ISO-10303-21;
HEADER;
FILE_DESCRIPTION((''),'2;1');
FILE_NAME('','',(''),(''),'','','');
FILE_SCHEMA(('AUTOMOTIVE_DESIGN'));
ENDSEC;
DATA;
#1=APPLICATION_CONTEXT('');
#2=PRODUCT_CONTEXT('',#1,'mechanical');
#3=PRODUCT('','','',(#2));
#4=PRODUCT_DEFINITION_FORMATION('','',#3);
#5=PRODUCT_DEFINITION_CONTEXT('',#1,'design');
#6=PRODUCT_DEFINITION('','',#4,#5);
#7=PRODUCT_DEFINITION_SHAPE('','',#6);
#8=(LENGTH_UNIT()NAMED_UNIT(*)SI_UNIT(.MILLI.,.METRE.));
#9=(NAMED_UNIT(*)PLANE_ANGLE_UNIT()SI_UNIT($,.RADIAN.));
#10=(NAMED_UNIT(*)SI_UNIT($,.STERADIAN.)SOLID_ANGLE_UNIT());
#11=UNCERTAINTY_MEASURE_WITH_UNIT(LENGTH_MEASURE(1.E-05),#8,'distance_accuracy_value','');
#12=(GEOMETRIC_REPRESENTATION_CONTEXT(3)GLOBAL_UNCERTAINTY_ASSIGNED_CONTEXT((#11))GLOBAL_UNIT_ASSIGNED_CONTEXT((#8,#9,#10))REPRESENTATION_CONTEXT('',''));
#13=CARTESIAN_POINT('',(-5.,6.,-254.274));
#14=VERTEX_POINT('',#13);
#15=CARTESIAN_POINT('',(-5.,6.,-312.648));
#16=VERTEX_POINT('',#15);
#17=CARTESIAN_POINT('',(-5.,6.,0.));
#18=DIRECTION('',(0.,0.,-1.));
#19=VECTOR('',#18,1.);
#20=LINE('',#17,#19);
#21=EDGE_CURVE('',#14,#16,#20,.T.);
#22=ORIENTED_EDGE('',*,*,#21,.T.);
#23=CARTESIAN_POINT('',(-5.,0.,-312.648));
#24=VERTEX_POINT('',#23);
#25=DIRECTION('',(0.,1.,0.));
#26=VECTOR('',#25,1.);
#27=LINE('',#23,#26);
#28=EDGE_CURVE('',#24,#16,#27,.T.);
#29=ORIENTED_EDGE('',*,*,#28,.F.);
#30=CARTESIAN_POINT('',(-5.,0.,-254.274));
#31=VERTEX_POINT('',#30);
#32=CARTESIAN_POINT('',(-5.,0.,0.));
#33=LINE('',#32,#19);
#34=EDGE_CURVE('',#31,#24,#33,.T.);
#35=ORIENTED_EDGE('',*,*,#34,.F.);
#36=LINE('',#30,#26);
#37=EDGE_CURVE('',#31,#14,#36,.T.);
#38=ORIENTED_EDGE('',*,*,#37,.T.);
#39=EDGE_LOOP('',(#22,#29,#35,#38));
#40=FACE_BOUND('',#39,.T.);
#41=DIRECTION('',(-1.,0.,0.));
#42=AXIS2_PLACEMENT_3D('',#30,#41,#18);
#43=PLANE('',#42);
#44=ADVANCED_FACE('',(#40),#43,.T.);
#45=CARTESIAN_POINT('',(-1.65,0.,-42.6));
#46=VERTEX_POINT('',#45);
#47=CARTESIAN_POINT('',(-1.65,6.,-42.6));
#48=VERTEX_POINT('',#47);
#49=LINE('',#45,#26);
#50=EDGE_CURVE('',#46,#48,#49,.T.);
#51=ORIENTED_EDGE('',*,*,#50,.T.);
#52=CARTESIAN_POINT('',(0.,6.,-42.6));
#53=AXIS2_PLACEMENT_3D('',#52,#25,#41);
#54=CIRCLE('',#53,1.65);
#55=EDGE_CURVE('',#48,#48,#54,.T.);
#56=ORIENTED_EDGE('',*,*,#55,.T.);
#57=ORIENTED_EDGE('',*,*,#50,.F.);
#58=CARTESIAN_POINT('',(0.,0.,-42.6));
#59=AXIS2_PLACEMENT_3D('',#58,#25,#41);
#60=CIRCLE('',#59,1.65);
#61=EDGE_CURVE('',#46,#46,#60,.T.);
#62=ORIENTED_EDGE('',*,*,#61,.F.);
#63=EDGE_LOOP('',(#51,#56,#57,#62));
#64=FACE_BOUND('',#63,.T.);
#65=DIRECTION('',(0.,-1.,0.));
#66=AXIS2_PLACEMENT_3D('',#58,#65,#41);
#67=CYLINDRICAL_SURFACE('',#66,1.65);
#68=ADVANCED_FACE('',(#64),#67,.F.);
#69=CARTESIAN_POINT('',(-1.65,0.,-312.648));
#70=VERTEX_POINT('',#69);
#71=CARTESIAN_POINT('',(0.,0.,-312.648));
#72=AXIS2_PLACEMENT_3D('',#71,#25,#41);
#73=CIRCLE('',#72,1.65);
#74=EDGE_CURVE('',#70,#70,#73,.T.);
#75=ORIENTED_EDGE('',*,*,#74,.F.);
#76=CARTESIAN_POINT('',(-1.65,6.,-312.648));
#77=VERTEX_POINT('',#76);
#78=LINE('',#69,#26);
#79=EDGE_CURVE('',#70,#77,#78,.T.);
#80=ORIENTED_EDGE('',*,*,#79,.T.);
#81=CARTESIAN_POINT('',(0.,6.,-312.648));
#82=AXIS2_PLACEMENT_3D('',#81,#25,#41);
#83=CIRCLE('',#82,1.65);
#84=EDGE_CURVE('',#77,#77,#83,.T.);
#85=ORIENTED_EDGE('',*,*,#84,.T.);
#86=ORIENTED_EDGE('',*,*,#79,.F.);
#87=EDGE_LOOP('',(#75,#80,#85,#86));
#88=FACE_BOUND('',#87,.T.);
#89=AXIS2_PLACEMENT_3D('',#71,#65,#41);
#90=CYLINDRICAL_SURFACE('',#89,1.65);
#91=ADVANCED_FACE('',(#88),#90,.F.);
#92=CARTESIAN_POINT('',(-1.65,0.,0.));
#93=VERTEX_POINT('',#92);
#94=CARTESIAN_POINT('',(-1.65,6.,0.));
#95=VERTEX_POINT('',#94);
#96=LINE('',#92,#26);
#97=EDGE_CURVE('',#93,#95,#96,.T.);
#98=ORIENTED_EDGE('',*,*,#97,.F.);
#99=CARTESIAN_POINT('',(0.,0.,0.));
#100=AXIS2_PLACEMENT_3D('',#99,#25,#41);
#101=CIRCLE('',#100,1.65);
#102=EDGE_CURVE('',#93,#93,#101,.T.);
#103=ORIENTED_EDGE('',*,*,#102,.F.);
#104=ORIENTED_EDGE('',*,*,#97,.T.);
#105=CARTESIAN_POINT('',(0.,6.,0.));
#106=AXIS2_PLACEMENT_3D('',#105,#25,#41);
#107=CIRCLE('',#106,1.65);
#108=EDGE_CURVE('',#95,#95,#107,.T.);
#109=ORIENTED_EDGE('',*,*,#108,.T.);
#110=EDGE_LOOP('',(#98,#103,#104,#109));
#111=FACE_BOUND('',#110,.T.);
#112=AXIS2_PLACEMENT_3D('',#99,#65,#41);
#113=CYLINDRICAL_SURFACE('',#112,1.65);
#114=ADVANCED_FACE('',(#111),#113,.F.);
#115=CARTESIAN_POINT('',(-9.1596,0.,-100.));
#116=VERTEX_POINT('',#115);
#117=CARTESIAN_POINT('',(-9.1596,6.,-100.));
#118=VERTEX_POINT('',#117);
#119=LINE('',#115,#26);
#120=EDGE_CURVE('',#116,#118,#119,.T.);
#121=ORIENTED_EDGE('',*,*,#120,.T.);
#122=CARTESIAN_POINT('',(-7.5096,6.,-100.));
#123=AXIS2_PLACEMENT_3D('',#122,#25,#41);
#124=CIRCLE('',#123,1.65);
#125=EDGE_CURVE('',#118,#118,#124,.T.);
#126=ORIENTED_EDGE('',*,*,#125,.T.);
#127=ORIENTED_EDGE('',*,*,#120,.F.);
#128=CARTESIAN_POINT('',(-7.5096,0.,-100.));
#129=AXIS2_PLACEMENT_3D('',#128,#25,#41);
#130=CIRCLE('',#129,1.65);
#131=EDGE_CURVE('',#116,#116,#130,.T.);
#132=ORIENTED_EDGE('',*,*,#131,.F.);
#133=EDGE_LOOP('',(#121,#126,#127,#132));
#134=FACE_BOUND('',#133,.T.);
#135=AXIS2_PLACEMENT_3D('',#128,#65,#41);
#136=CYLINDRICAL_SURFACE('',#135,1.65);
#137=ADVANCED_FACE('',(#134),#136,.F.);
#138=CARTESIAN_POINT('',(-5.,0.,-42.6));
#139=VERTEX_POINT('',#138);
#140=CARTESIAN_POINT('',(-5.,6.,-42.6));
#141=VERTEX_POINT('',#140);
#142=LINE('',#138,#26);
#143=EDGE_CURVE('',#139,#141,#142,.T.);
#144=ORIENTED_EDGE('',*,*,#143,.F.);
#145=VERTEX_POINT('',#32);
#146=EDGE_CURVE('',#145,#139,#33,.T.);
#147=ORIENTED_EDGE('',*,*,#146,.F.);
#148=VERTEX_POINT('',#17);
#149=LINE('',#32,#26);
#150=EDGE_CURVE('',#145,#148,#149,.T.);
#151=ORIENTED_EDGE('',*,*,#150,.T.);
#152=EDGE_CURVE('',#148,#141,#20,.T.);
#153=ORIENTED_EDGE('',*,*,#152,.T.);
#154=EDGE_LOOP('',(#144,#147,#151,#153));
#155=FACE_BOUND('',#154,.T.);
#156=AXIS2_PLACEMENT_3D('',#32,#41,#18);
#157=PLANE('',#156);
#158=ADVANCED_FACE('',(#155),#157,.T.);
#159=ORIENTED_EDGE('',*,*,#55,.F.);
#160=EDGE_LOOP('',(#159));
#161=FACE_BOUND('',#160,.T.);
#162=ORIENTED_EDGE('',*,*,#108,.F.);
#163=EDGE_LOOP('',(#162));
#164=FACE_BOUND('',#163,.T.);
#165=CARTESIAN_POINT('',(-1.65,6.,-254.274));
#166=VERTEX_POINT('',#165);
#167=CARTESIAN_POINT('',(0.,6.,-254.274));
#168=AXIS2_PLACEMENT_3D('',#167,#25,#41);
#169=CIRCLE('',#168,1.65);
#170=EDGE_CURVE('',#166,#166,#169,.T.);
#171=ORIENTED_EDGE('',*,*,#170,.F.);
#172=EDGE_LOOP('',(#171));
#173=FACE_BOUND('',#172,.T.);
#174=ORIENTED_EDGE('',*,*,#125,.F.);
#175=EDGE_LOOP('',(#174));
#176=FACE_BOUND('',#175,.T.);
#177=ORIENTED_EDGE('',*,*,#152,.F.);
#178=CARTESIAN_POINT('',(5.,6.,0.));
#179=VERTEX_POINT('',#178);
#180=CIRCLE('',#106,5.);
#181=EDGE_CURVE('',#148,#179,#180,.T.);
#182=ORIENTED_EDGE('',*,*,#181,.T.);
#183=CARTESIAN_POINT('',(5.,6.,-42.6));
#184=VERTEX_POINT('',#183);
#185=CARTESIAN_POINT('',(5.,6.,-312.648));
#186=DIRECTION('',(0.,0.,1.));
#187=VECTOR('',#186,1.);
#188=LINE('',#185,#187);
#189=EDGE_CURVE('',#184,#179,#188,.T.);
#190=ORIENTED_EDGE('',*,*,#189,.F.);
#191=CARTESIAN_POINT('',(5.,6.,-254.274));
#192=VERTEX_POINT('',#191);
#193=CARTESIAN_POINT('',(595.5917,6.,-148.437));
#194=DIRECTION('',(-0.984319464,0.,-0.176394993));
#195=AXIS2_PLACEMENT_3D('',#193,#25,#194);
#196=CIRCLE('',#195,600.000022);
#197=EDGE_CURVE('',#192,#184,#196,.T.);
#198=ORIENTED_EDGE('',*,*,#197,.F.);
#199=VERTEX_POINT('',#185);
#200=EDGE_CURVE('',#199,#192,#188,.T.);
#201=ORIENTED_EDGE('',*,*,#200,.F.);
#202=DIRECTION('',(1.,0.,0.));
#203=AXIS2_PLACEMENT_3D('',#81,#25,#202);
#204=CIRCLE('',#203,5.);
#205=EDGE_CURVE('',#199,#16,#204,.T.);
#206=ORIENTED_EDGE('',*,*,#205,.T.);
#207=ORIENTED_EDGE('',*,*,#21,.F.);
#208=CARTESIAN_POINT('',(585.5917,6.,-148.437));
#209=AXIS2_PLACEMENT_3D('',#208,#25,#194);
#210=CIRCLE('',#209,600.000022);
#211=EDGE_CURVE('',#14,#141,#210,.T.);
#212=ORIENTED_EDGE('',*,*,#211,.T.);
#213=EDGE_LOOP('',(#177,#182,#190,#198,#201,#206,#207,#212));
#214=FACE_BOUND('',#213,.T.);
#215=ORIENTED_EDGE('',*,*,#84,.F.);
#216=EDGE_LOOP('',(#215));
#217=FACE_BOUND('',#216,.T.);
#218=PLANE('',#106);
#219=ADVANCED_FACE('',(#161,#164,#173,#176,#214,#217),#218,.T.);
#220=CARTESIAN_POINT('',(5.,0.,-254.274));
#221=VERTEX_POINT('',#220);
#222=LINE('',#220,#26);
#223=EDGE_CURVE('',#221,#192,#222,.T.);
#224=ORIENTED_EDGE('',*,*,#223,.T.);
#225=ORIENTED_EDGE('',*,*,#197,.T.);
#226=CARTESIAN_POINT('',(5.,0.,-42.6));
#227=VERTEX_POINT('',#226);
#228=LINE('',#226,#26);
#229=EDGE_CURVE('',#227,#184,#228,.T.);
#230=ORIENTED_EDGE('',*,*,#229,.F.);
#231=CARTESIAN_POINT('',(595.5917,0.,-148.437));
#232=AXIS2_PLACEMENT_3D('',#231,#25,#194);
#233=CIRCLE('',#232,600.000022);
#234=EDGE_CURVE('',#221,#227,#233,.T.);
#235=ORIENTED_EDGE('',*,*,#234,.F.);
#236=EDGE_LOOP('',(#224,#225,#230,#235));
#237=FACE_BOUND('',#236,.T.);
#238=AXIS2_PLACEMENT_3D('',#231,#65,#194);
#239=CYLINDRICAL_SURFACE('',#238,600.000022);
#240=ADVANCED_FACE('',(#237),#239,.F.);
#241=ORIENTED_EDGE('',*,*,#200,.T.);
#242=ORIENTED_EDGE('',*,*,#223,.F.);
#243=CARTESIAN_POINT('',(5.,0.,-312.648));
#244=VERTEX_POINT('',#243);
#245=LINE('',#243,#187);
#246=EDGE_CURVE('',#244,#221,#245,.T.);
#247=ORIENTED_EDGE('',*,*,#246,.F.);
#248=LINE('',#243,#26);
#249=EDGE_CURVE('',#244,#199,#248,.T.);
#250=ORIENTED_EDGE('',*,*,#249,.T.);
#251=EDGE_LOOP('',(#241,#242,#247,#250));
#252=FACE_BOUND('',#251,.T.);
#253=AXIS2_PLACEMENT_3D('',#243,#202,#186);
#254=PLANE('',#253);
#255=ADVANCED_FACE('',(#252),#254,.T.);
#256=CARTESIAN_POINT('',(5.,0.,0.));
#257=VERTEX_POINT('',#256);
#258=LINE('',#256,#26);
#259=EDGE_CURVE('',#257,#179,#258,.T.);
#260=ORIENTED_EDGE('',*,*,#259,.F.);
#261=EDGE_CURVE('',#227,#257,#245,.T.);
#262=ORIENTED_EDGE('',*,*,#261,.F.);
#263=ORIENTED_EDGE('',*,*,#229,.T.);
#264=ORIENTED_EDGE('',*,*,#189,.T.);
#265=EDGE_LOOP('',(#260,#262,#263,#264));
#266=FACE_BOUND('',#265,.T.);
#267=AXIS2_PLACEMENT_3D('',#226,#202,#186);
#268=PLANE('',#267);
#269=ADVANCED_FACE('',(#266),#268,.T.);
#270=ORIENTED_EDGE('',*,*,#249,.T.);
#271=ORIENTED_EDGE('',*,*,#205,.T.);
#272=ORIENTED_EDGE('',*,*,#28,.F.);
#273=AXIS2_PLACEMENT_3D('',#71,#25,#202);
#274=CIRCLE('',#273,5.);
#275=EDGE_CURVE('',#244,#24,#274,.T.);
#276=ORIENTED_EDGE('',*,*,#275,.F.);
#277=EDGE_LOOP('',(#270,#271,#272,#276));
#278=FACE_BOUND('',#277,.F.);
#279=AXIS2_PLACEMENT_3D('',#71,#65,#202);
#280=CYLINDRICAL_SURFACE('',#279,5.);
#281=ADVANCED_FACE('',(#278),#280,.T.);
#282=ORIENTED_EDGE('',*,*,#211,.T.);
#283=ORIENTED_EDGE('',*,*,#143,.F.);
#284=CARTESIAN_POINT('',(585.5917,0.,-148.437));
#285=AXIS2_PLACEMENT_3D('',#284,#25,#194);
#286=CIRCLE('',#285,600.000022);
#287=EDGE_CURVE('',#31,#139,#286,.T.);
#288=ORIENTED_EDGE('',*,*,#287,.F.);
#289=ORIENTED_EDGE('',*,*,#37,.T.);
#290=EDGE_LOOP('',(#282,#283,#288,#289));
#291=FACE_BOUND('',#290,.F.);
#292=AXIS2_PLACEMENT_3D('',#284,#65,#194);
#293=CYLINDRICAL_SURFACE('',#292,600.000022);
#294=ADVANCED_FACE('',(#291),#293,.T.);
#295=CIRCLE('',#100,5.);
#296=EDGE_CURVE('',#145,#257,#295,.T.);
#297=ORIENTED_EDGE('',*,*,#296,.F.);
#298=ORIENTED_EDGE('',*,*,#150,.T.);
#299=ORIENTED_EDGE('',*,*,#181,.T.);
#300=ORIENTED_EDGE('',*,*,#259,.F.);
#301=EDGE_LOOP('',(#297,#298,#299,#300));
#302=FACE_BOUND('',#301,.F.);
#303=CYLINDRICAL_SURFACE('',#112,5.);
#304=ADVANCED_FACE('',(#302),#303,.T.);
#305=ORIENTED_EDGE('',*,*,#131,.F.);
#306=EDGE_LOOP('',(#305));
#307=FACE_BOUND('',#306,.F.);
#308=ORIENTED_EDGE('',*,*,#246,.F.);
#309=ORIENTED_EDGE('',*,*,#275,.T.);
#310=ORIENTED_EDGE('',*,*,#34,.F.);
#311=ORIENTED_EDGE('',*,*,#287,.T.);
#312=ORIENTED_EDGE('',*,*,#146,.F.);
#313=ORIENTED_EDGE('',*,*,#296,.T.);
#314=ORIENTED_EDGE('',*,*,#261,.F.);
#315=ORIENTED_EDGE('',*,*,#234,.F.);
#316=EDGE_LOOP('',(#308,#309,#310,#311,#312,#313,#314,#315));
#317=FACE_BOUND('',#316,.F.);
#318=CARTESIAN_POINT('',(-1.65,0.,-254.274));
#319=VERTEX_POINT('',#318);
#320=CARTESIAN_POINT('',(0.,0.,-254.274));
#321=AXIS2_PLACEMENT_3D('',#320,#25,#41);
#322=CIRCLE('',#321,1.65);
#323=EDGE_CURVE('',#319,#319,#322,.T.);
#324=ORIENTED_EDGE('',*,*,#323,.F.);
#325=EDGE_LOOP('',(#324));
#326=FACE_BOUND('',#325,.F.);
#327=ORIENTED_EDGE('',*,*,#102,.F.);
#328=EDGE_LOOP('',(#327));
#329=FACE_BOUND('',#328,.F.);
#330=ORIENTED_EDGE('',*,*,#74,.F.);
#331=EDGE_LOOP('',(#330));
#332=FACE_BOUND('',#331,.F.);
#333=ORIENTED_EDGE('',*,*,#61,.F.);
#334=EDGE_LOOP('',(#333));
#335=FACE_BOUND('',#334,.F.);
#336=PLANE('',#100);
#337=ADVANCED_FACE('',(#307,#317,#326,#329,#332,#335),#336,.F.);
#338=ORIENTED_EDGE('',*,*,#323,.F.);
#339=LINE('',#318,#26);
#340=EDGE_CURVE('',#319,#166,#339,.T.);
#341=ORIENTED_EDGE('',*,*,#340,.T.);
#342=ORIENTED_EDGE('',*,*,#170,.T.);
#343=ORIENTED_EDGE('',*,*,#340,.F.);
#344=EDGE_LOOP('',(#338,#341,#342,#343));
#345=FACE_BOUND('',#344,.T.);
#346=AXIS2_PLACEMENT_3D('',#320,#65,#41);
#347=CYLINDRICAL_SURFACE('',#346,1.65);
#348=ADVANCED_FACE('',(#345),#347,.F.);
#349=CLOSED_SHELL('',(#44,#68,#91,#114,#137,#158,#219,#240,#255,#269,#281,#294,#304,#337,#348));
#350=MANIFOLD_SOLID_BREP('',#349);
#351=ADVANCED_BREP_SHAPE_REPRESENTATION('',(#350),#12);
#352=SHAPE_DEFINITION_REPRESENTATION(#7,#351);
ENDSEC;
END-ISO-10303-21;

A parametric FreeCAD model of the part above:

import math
import FreeCAD as App
import Part
import Sketcher
Q = App.Units.Quantity

doc = App.newDocument("Part")
body = doc.addObject("PartDesign::Body", "Body")

sketch1 = body.newObject("Sketcher::SketchObject", "Sketch")
sketch1.AttachmentSupport = (doc.getObject("XZ_Plane"), [""])
sketch1.MapMode = "FlatFace"
sketch1.addGeometry(Part.LineSegment(App.Vector(-5, -42.6, 0), App.Vector(-5, 0, 0)), False)
sketch1.addGeometry(Part.ArcOfCircle(Part.Circle(App.Vector(0, 0, 0), App.Vector(0, 0, 1), 5), math.radians(0), math.radians(180)), False)
sketch1.addGeometry(Part.LineSegment(App.Vector(5, 0, 0), App.Vector(5, -42.6, 0)), False)
sketch1.addGeometry(Part.ArcOfCircle(Part.Circle(App.Vector(595.6, -148.4, 0), App.Vector(0, 0, 1), 600), math.radians(170), math.radians(190)), False)
sketch1.addGeometry(Part.LineSegment(App.Vector(5, -254.3, 0), App.Vector(5, -312.6, 0)), False)
sketch1.addGeometry(Part.ArcOfCircle(Part.Circle(App.Vector(0, -312.6, 0), App.Vector(0, 0, 1), 5), math.radians(180), math.radians(360)), False)
sketch1.addGeometry(Part.LineSegment(App.Vector(-5, -312.6, 0), App.Vector(-5, -254.3, 0)), False)
sketch1.addGeometry(Part.ArcOfCircle(Part.Circle(App.Vector(585.6, -148.4, 0), App.Vector(0, 0, 1), 600), math.radians(170), math.radians(190)), False)
sketch1.addGeometry(Part.Circle(App.Vector(0, -312.6, 0), App.Vector(0, 0, 1), 1.6), False)
sketch1.addGeometry(Part.Circle(App.Vector(0, -254.3, 0), App.Vector(0, 0, 1), 1.6), False)
sketch1.addGeometry(Part.Circle(App.Vector(0, -42.6, 0), App.Vector(0, 0, 1), 1.6), False)
sketch1.addGeometry(Part.Circle(App.Vector(0, 0, 0), App.Vector(0, 0, 1), 1.6), False)
sketch1.addGeometry(Part.Circle(App.Vector(-7.5, -100, 0), App.Vector(0, 0, 1), 1.6), False)
sketch1.addConstraint(Sketcher.Constraint("Tangent", 0, 2, 1, 2))
sketch1.addConstraint(Sketcher.Constraint("Tangent", 1, 1, 2, 1))
sketch1.addConstraint(Sketcher.Constraint("Coincident", 2, 2, 3, 1))
sketch1.addConstraint(Sketcher.Constraint("Coincident", 3, 2, 4, 1))
sketch1.addConstraint(Sketcher.Constraint("Tangent", 4, 2, 5, 2))
sketch1.addConstraint(Sketcher.Constraint("Tangent", 5, 1, 6, 1))
sketch1.addConstraint(Sketcher.Constraint("Coincident", 6, 2, 7, 2))
sketch1.addConstraint(Sketcher.Constraint("Coincident", 7, 1, 0, 1))
sketch1.addConstraint(Sketcher.Constraint("Vertical", 0))
sketch1.addConstraint(Sketcher.Constraint("Vertical", 2))
sketch1.addConstraint(Sketcher.Constraint("Vertical", 4))
sketch1.addConstraint(Sketcher.Constraint("Vertical", 6))
sketch1.addConstraint(Sketcher.Constraint("Coincident", 1, 3, -1, 1))
sketch1.addConstraint(Sketcher.Constraint("Coincident", 11, 3, -1, 1))
sketch1.addConstraint(Sketcher.Constraint("Coincident", 8, 3, 5, 3))
sketch1.addConstraint(Sketcher.Constraint("Equal", 1, 5))
sketch1.addConstraint(Sketcher.Constraint("Equal", 3, 7))
sketch1.addConstraint(Sketcher.Constraint("Equal", 8, 9))
sketch1.addConstraint(Sketcher.Constraint("Equal", 9, 10))
sketch1.addConstraint(Sketcher.Constraint("Equal", 10, 11))
sketch1.addConstraint(Sketcher.Constraint("Equal", 11, 12))
sketch1.addConstraint(Sketcher.Constraint("Symmetric", 3, 2, 6, 2, -2))
sketch1.addConstraint(Sketcher.Constraint("PointOnObject", 9, 3, -2))
sketch1.addConstraint(Sketcher.Constraint("PointOnObject", 10, 3, -2))
sketch1.addConstraint(Sketcher.Constraint("Horizontal", 3, 3, 7, 3))
sketch1.addConstraint(Sketcher.Constraint("Horizontal", 10, 3, 2, 2))
sketch1.addConstraint(Sketcher.Constraint("Horizontal", 9, 3, 3, 2))
sketch1.addConstraint(Sketcher.Constraint("Radius", 1, Q("5 mm")))
sketch1.addConstraint(Sketcher.Constraint("Radius", 3, Q("600 mm")))
sketch1.addConstraint(Sketcher.Constraint("Diameter", 8, Q("3.3 mm")))
sketch1.addConstraint(Sketcher.Constraint("DistanceY", 0, 1, 0, 2, Q("42.6 mm")))
sketch1.addConstraint(Sketcher.Constraint("DistanceY", 12, 3, -1, 1, Q("100 mm")))
sketch1.addConstraint(Sketcher.Constraint("DistanceY", 5, 3, -1, 1, Q("312.648 mm")))
sketch1.addConstraint(Sketcher.Constraint("DistanceY", 9, 3, -1, 1, Q("254.274 mm")))
sketch1.addConstraint(Sketcher.Constraint("DistanceX", 12, 3, -1, 1, Q("7.5096 mm")))
pad1 = body.newObject("PartDesign::Pad", "Pad")
pad1.Profile = sketch1
pad1.Length = 6
pad1.Reversed = True

doc.recompute()
